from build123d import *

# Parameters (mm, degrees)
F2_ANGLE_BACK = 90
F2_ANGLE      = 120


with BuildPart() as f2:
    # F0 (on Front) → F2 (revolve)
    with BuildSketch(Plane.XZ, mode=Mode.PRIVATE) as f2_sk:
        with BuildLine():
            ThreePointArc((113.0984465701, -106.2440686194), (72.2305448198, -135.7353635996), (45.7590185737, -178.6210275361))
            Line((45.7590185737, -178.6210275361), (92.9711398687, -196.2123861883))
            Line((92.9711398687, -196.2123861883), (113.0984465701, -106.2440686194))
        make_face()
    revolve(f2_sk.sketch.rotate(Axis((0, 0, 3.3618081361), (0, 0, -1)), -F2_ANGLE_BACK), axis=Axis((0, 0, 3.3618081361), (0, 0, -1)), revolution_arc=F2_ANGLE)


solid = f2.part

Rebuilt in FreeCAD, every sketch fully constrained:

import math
import FreeCAD as App
import Part
import Sketcher

doc = App.newDocument("Part")
body = doc.addObject("PartDesign::Body", "Body")

sketch1 = doc.addObject("Sketcher::SketchObject", "Sketch")
body.addObject(sketch1)
sketch1.AttachmentSupport = (doc.YZ_Plane, [""])
sketch1.MapMode = "FlatFace"
sketch1.addGeometry(Part.ArcOfCircle(Part.Circle(App.Vector(166.7974, -223.720242, 0), App.Vector(0, 0, 1), 129.167445), math.radians(114.56538), math.radians(159.564476)), False)
sketch1.addGeometry(Part.LineSegment(App.Vector(45.759019, -178.621028, 0), App.Vector(92.97114, -196.212386, 0)), False)
sketch1.addGeometry(Part.LineSegment(App.Vector(92.97114, -196.212386, 0), App.Vector(113.098447, -106.244069, 0)), False)
sketch1.addConstraint(Sketcher.Constraint("Coincident", 0, 2, 1, 1))
sketch1.addConstraint(Sketcher.Constraint("Coincident", 1, 2, 2, 1))
sketch1.addConstraint(Sketcher.Constraint("Coincident", 2, 2, 0, 1))
sketch1.addConstraint(Sketcher.Constraint("Radius", 0, 129.167445))
sketch1.addConstraint(Sketcher.Constraint("DistanceX", -1, 1, 0, 3, 166.7974))
sketch1.addConstraint(Sketcher.Constraint("DistanceY", 0, 3, -1, 1, 223.720242))
sketch1.addConstraint(Sketcher.Constraint("DistanceX", -1, 1, 0, 2, 45.759019))
sketch1.addConstraint(Sketcher.Constraint("DistanceX", -1, 1, 1, 2, 92.97114))
sketch1.addConstraint(Sketcher.Constraint("DistanceY", 2, 2, -1, 1, 106.244069))
sketch1.addConstraint(Sketcher.Constraint("DistanceY", 1, 2, 0, 2, 17.591359))
revolution = doc.addObject("PartDesign::Revolution", "Revolution")
body.addObject(revolution)
revolution.Profile = sketch1
revolution.ReferenceAxis = (sketch1, ["V_Axis"])
revolution.Angle = 120
revolution.Reversed = True

doc.recompute()
